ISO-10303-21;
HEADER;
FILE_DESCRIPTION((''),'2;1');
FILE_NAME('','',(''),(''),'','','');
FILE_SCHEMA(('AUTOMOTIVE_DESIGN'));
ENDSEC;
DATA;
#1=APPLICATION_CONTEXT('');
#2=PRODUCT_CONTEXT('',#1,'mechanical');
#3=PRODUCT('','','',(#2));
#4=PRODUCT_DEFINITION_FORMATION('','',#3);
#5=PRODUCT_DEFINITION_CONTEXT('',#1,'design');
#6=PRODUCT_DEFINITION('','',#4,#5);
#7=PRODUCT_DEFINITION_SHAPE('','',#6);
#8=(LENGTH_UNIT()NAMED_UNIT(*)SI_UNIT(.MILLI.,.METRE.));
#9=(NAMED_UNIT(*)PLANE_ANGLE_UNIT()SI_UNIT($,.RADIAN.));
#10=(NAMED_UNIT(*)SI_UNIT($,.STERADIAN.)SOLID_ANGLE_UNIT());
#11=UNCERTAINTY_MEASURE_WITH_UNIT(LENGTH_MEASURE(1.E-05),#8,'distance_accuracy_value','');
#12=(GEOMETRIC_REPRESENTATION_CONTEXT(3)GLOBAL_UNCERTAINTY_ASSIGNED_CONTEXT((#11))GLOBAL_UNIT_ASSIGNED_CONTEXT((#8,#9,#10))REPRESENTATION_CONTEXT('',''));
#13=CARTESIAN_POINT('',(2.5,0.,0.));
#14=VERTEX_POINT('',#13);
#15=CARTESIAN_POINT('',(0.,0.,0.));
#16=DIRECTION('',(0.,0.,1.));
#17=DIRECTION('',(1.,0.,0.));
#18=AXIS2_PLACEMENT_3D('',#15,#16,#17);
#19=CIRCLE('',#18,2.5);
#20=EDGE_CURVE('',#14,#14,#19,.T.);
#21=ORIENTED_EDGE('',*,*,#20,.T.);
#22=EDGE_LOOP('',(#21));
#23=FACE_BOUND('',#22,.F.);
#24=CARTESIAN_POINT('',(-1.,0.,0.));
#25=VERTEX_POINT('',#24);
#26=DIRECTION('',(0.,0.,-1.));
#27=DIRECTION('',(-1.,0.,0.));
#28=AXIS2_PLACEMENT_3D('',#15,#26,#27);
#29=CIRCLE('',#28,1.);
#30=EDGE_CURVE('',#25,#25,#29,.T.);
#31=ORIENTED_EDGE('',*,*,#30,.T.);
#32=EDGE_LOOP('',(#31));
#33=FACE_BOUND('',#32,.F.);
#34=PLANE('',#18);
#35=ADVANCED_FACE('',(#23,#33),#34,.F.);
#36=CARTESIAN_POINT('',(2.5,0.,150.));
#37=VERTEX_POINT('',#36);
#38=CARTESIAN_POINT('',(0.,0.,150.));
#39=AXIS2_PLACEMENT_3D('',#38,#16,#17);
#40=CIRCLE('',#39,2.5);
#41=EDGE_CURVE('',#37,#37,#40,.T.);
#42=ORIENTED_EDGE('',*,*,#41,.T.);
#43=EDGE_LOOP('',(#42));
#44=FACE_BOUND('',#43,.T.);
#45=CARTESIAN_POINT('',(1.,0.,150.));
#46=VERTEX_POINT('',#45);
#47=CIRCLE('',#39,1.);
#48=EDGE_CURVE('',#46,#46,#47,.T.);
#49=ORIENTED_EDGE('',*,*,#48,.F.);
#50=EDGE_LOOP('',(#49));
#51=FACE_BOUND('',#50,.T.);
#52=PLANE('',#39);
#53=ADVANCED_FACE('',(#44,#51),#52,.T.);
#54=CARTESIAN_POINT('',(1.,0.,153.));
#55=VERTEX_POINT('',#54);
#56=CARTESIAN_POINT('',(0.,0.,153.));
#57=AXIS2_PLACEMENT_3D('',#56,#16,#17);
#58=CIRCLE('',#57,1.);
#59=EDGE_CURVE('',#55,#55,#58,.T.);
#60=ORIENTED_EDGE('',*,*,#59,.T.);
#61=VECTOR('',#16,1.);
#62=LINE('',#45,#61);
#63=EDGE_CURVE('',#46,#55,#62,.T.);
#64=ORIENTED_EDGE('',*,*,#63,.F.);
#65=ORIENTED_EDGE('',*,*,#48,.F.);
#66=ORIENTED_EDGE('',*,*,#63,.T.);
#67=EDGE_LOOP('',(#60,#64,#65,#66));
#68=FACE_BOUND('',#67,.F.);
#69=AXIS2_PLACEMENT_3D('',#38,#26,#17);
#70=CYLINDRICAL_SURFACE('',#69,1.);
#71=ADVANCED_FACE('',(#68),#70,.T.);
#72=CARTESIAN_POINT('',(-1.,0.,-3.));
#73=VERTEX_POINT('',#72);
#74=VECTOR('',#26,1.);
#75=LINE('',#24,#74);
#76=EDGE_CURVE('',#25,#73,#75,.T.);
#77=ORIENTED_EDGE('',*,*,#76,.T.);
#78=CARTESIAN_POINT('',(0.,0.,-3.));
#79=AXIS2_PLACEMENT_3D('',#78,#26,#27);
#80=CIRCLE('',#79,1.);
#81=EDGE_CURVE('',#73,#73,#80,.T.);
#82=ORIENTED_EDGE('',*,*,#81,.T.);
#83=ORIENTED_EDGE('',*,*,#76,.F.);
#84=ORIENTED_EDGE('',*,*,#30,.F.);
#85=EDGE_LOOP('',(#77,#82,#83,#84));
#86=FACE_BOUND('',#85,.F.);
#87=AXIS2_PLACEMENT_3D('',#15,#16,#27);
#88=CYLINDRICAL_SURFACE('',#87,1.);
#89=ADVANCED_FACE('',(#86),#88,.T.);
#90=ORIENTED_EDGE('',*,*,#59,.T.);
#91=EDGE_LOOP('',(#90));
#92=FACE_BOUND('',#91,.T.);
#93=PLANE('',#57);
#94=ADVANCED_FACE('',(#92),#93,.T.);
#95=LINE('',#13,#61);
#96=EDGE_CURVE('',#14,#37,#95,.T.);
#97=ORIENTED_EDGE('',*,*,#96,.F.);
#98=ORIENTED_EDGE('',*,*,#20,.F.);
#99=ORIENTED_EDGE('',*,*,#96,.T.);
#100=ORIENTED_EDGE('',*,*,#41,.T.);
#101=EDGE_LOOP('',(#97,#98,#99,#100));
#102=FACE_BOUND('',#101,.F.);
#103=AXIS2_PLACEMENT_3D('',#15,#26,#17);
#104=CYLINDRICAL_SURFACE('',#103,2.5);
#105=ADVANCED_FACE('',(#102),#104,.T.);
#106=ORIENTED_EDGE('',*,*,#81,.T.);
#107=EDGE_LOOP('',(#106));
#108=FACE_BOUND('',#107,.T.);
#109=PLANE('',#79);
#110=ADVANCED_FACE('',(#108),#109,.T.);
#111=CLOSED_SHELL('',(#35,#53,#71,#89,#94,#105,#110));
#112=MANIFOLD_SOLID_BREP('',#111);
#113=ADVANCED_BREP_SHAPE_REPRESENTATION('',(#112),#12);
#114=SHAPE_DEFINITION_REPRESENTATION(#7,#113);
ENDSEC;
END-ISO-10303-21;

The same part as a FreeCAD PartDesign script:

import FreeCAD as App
import Part
import Sketcher
Q = App.Units.Quantity

doc = App.newDocument("Part")
body = doc.addObject("PartDesign::Body", "Body")

sketch1 = body.newObject("Sketcher::SketchObject", "Sketch")
sketch1.AttachmentSupport = (doc.getObject("XY_Plane"), [""])
sketch1.MapMode = "FlatFace"
sketch1.addGeometry(Part.Circle(App.Vector(0, 0, 0), App.Vector(0, 0, 1), 2.5), False)
sketch1.addConstraint([
    Sketcher.Constraint("Coincident", 0, 3, -1, 1),
    Sketcher.Constraint("Diameter", 0, Q("5 mm")),
])
pad1 = body.newObject("PartDesign::Pad", "Pad")
pad1.Profile = sketch1
pad1.Length = 150

sketch2 = body.newObject("Sketcher::SketchObject", "Sketch001")
sketch2.AttachmentSupport = (doc.getObject("XY_Plane"), [""])
sketch2.MapMode = "FlatFace"
sketch2.AttachmentOffset = App.Placement(App.Vector(0, 0, 150), App.Rotation())
sketch2.addGeometry(Part.Circle(App.Vector(0, 0, 0), App.Vector(0, 0, 1), 1), False)
sketch2.addConstraint([
    Sketcher.Constraint("Coincident", 0, 3, -1, 1),
    Sketcher.Constraint("Diameter", 0, Q("2 mm")),
])
pad2 = body.newObject("PartDesign::Pad", "Pad001")
pad2.Profile = sketch2
pad2.Length = 3

sketch3 = body.newObject("Sketcher::SketchObject", "Sketch002")
sketch3.AttachmentSupport = (doc.getObject("XY_Plane"), [""])
sketch3.MapMode = "FlatFace"
sketch3.addGeometry(Part.Circle(App.Vector(0, 0, 0), App.Vector(0, 0, 1), 1), False)
sketch3.addConstraint([
    Sketcher.Constraint("Coincident", 0, 3, -1, 1),
    Sketcher.Constraint("Diameter", 0, Q("2 mm")),
])
pad3 = body.newObject("PartDesign::Pad", "Pad002")
pad3.Profile = sketch3
pad3.Length = 3
pad3.Reversed = True

doc.recompute()
